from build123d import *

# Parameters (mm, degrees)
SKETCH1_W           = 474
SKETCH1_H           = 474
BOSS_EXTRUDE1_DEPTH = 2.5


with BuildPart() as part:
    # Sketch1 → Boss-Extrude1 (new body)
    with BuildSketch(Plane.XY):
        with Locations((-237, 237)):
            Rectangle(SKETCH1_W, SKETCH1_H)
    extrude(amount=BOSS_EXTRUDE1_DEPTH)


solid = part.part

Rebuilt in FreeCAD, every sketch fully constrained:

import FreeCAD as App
import Part
import Sketcher

V = App.Vector
Q = App.Units.Quantity

doc = App.newDocument("Part")
body = doc.addObject("PartDesign::Body", "Body")

# Sketch on XY plane
sketch1 = body.newObject("Sketcher::SketchObject", "Sketch")
sketch1.AttachmentSupport = (doc.getObject("XY_Plane"), [""])
sketch1.MapMode = "FlatFace"
sketch1.addGeometry([
    Part.LineSegment(V(-474, 474, 0), V(-474, 0, 0)),
    Part.LineSegment(V(-474, 0, 0), V(0, 0, 0)),
    Part.LineSegment(V(0, 0, 0), V(0, 474, 0)),
    Part.LineSegment(V(0, 474, 0), V(-474, 474, 0)),
], False)
sketch1.addConstraint([
    Sketcher.Constraint("Coincident", 0, 2, 1, 1),
    Sketcher.Constraint("Coincident", 1, 2, 2, 1),
    Sketcher.Constraint("Coincident", 2, 2, 3, 1),
    Sketcher.Constraint("Coincident", 3, 2, 0, 1),
    Sketcher.Constraint("Vertical", 0),
    Sketcher.Constraint("Horizontal", 1),
    Sketcher.Constraint("Vertical", 2),
    Sketcher.Constraint("Horizontal", 3),
    Sketcher.Constraint("Coincident", 1, 2, -1, 1),
    Sketcher.Constraint("Equal", 3, 0),
    Sketcher.Constraint("DistanceX", 1, 1, 1, 2, Q("474 mm")),
])
pad1 = body.newObject("PartDesign::Pad", "Pad")
pad1.Profile = sketch1
pad1.Length = 2.5

doc.recompute()
